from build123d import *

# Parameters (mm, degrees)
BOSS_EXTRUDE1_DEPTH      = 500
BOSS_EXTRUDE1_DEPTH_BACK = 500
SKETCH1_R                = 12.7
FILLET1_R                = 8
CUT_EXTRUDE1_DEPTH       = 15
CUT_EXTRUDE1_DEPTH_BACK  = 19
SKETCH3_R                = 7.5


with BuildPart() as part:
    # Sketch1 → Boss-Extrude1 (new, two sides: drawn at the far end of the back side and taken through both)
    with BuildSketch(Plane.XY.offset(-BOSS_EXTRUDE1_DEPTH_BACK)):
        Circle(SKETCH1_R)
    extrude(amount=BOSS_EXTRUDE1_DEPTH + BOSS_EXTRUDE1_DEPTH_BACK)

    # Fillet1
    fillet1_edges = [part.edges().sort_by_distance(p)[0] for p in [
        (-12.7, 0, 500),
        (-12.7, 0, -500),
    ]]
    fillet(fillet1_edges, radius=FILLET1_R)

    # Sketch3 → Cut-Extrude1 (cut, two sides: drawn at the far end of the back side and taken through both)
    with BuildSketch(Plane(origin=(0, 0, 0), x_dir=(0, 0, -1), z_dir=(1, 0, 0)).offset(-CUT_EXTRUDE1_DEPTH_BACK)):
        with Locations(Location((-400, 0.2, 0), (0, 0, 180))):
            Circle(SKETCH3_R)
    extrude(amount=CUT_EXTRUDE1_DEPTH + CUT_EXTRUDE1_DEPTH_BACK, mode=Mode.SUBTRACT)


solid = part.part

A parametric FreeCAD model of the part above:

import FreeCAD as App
import Part
import Sketcher
from FreeCAD import Vector


def edges_at(feature, points):
    """Names of the edges that pass closest to the given points."""
    edges = feature.Shape.Edges
    near = lambda p: min(range(len(edges)), key=lambda i: edges[i].distToShape(Part.Vertex(*p))[0])
    return sorted({f"Edge{near(p) + 1}" for p in points})

doc = App.newDocument("Part")
body = doc.addObject("PartDesign::Body", "Body")

# Sketch on XY plane
sketch1 = body.newObject("Sketcher::SketchObject", "Sketch")
sketch1.AttachmentSupport = (doc.getObject("XY_Plane"), [""])
sketch1.MapMode = "FlatFace"
sketch1.addGeometry(Part.Circle(Vector(0, 0, 0), Vector(0, 0, 1), 12.7), False)
sketch1.addConstraint(Sketcher.Constraint("Coincident", 0, 3, -1, 1))
sketch1.addConstraint(Sketcher.Constraint("Diameter", 0, 25.4))
pad1 = body.newObject("PartDesign::Pad", "Pad")
pad1.Profile = sketch1
pad1.Type = "TwoLengths"
pad1.Length = 500
pad1.Length2 = 500
doc.recompute()

fillet = body.newObject("PartDesign::Fillet", "Fillet")
fillet.Base = (pad1, edges_at(pad1, [(-12.7, 0, 500), (-12.7, 0, -500)]))
fillet.Radius = 8

# Sketch on YZ plane
sketch2 = body.newObject("Sketcher::SketchObject", "Sketch001")
sketch2.AttachmentSupport = (doc.getObject("YZ_Plane"), [""])
sketch2.MapMode = "FlatFace"
sketch2.addGeometry(Part.Circle(Vector(0.2, 400, 0), Vector(0, 0, 1), 7.5), False)
sketch2.addConstraint(Sketcher.Constraint("Diameter", 0, 15.0))
sketch2.addConstraint(Sketcher.Constraint("DistanceY", -1, 1, 0, 3, 400.0))
sketch2.addConstraint(Sketcher.Constraint("DistanceX", -1, 1, 0, 3, 0.2))
pocket1 = body.newObject("PartDesign::Pocket", "Pocket")
pocket1.Profile = sketch2
pocket1.Type = "ThroughAll"
pocket1.Midplane = True

doc.recompute()
